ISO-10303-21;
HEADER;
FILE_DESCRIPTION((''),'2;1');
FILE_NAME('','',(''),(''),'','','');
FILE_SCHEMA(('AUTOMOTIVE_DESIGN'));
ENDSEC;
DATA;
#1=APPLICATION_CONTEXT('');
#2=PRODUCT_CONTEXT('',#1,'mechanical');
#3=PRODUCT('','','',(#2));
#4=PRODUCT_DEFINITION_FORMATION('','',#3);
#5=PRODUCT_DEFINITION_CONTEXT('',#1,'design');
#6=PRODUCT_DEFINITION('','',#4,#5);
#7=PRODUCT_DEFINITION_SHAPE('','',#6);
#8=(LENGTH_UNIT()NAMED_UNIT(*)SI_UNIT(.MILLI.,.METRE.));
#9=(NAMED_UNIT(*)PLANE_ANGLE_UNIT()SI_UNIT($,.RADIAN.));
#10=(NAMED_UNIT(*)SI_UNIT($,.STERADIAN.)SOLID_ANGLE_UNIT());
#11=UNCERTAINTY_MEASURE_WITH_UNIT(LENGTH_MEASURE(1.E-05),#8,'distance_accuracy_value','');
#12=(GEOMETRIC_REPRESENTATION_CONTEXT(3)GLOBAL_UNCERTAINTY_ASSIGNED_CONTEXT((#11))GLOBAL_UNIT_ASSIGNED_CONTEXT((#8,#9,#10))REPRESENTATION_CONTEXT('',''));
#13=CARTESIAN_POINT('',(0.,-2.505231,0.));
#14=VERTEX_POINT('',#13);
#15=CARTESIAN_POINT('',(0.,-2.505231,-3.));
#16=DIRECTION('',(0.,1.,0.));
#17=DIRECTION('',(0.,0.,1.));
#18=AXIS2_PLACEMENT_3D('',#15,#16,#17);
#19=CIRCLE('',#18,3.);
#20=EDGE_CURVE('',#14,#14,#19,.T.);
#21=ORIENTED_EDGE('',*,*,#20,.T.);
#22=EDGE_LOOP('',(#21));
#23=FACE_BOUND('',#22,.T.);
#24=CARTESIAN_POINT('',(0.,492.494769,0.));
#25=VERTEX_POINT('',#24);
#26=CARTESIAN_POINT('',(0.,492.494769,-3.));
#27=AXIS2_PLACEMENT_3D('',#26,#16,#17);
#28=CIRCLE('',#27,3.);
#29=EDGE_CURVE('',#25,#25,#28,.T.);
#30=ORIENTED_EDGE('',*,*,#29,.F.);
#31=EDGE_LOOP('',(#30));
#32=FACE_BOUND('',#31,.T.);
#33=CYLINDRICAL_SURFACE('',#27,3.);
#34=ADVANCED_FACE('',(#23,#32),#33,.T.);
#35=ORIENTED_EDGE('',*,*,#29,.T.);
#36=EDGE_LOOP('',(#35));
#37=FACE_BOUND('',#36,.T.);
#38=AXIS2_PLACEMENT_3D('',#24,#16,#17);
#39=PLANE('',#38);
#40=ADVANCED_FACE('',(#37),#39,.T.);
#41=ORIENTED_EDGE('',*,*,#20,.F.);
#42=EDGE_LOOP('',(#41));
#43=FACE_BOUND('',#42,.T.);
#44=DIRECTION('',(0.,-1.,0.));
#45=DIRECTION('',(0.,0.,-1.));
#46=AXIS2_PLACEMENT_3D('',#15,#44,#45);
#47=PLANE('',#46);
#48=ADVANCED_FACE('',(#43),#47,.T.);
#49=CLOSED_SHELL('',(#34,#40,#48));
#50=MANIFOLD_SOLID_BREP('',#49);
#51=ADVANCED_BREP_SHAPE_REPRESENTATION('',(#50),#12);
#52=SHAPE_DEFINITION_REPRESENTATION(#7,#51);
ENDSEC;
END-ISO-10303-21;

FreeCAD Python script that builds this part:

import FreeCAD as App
import Part
import Sketcher

V = App.Vector

doc = App.newDocument("Part")
body = doc.addObject("PartDesign::Body", "Body")

# Sketch on YZ plane
sketch1 = body.newObject("Sketcher::SketchObject", "Sketch")
sketch1.AttachmentSupport = (doc.getObject("YZ_Plane"), [""])
sketch1.MapMode = "FlatFace"
sketch1.addGeometry([
    Part.LineSegment(V(492.5, 0, 0), V(-2.5, 0, 0)),
    Part.LineSegment(V(-2.5, 0, 0), V(-2.5, -3, 0)),
    Part.LineSegment(V(-2.5, -3, 0), V(492.5, -3, 0)),
    Part.LineSegment(V(492.5, -3, 0), V(492.5, 0, 0)),
], False)
sketch1.addGeometry(Part.LineSegment(V(492.5, -3, 0), V(-2.5, -3, 0)), True)  # axis
sketch1.addConstraint([
    Sketcher.Constraint("Coincident", 0, 2, 1, 1),
    Sketcher.Constraint("Coincident", 1, 2, 2, 1),
    Sketcher.Constraint("Coincident", 2, 2, 3, 1),
    Sketcher.Constraint("Coincident", 3, 2, 0, 1),
    Sketcher.Constraint("Horizontal", 0),
    Sketcher.Constraint("Vertical", 1),
    Sketcher.Constraint("Horizontal", 2),
    Sketcher.Constraint("Vertical", 3),
    Sketcher.Constraint("Horizontal", 4),
    Sketcher.Constraint("Coincident", 4, 1, 2, 2),
    Sketcher.Constraint("PointOnObject", 0, 2, -1),
    Sketcher.Constraint("Vertical", 0, 2, 4, 2),
    Sketcher.Constraint("DistanceX", 0, 2, 0, 1, 495.0),
    Sketcher.Constraint("DistanceY", 1, 2, 1, 1, 3.0),
    Sketcher.Constraint("DistanceX", 0, 2, -1, 1, 2.505231),
])
revolution = body.newObject("PartDesign::Revolution", "Revolution")
revolution.Profile = sketch1
revolution.ReferenceAxis = (sketch1, ["Axis0"])
revolution.Angle = 360

doc.recompute()
